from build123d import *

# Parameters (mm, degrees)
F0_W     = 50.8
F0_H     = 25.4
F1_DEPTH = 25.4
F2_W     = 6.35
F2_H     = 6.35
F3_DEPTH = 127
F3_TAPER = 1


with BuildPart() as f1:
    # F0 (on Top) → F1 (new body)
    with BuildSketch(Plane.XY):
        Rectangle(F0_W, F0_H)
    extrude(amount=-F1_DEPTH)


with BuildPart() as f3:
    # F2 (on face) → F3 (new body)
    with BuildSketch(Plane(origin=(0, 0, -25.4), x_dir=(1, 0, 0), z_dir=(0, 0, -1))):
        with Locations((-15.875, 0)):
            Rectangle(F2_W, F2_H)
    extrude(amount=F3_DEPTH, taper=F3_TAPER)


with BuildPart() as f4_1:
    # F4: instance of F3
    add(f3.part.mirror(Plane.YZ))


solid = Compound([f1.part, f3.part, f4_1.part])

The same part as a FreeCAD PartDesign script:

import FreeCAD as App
import Part
import Sketcher

V = App.Vector
Q = App.Units.Quantity

doc = App.newDocument("Part")
body = doc.addObject("PartDesign::Body", "Body")

# Sketch on XY plane
sketch1 = body.newObject("Sketcher::SketchObject", "Sketch")
sketch1.AttachmentSupport = (doc.getObject("XY_Plane"), [""])
sketch1.MapMode = "FlatFace"
sketch1.addGeometry(Part.LineSegment(V(-25, 13, 0), V(-25, -13, 0)), False)
sketch1.addGeometry(Part.LineSegment(V(-25, -13, 0), V(25, -13, 0)), False)
sketch1.addGeometry(Part.LineSegment(V(25, -13, 0), V(25, 13, 0)), False)
sketch1.addGeometry(Part.LineSegment(V(25, 13, 0), V(-25, 13, 0)), False)
sketch1.addConstraint(Sketcher.Constraint("Coincident", 0, 2, 1, 1))
sketch1.addConstraint(Sketcher.Constraint("Coincident", 1, 2, 2, 1))
sketch1.addConstraint(Sketcher.Constraint("Coincident", 2, 2, 3, 1))
sketch1.addConstraint(Sketcher.Constraint("Coincident", 3, 2, 0, 1))
sketch1.addConstraint(Sketcher.Constraint("Vertical", 0))
sketch1.addConstraint(Sketcher.Constraint("Horizontal", 1))
sketch1.addConstraint(Sketcher.Constraint("Vertical", 2))
sketch1.addConstraint(Sketcher.Constraint("Horizontal", 3))
sketch1.addConstraint(Sketcher.Constraint("Symmetric", 0, 2, 2, 2, -1, 1))
sketch1.addConstraint(Sketcher.Constraint("DistanceX", 1, 1, 1, 2, Q("2 in")))
sketch1.addConstraint(Sketcher.Constraint("DistanceY", 0, 2, 0, 1, Q("1 in")))
pad1 = body.newObject("PartDesign::Pad", "Pad")
pad1.Profile = sketch1
pad1.Length = Q("1 in")
pad1.Reversed = True
body2 = doc.addObject("PartDesign::Body", "Body001")

# Sketch on XY plane
sketch2 = body2.newObject("Sketcher::SketchObject", "Sketch001")
sketch2.AttachmentSupport = (doc.getObject("XY_Plane001"), [""])
sketch2.MapMode = "FlatFace"
sketch2.AttachmentOffset = App.Placement(V(0, 0, -1 * 25.4), App.Rotation())
sketch2.addGeometry(Part.LineSegment(V(-19, -3, 0), V(-19, 3, 0)), False)
sketch2.addGeometry(Part.LineSegment(V(-19, 3, 0), V(-13, 3, 0)), False)
sketch2.addGeometry(Part.LineSegment(V(-13, 3, 0), V(-13, -3, 0)), False)
sketch2.addGeometry(Part.LineSegment(V(-13, -3, 0), V(-19, -3, 0)), False)
sketch2.addConstraint(Sketcher.Constraint("Coincident", 0, 2, 1, 1))
sketch2.addConstraint(Sketcher.Constraint("Coincident", 1, 2, 2, 1))
sketch2.addConstraint(Sketcher.Constraint("Coincident", 2, 2, 3, 1))
sketch2.addConstraint(Sketcher.Constraint("Coincident", 3, 2, 0, 1))
sketch2.addConstraint(Sketcher.Constraint("Vertical", 0))
sketch2.addConstraint(Sketcher.Constraint("Horizontal", 1))
sketch2.addConstraint(Sketcher.Constraint("Vertical", 2))
sketch2.addConstraint(Sketcher.Constraint("Horizontal", 3))
sketch2.addConstraint(Sketcher.Constraint("Equal", 3, 0))
sketch2.addConstraint(Sketcher.Constraint("DistanceX", 1, 1, 1, 2, Q("0.25 in")))
sketch2.addConstraint(Sketcher.Constraint("DistanceX", 1, 2, -1, 1, Q("0.5 in")))
sketch2.addConstraint(Sketcher.Constraint("DistanceY", -1, 1, 0, 2, Q("0.125 in")))
pad2 = body2.newObject("PartDesign::Pad", "Pad001")
pad2.Profile = sketch2
pad2.Length = Q("5 in")
pad2.Reversed = True
pad2.TaperAngle = -1
body3 = doc.addObject("PartDesign::Body", "Body002")
doc.recompute()

mirroring = doc.addObject("Part::Mirroring", "Mirroring")
mirroring.Source = body2
mirroring.Base = V(0, 0, 0)
mirroring.Normal = V(1, 0, 0)
body3.BaseFeature = mirroring
doc.recompute()
mirroring.Visibility = False

doc.recompute()
